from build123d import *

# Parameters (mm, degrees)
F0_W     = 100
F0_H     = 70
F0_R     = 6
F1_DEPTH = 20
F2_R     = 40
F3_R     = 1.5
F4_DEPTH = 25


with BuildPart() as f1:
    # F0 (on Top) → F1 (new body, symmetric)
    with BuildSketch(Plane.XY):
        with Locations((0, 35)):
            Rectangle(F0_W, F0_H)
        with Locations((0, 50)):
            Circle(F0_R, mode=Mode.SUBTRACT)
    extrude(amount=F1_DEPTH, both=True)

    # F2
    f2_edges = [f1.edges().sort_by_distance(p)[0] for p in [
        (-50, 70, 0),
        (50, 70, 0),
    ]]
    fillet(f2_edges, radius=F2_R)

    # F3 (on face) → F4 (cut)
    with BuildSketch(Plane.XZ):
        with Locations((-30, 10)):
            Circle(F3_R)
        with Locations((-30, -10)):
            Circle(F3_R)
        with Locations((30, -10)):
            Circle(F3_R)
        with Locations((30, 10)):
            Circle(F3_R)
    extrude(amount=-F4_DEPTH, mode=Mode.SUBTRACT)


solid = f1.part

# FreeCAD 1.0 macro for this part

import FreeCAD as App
import Part
import Sketcher
from FreeCAD import Vector
Q = App.Units.Quantity


def edges_at(feature, points):
    """Names of the edges that pass closest to the given points."""
    edges = feature.Shape.Edges
    near = lambda p: min(range(len(edges)), key=lambda i: edges[i].distToShape(Part.Vertex(*p))[0])
    return sorted({f"Edge{near(p) + 1}" for p in points})

doc = App.newDocument("Part")
params = doc.addObject("Spreadsheet::Sheet", "Params")
for row, (alias, value) in enumerate([
    ("sketch1_diameter", "12 mm"),
    ("sketch1_width", "100 mm"),
    ("sketch1_height", "70 mm"),
    ("pad1_length", "40 mm"),
    ("fillet_radius", "40 mm"),
    ("sketch2_diameter", "3 mm"),
    ("pocket1_length", "25 mm"),
], start=1):
    params.set(f"A{row}", alias)
    params.set(f"B{row}", "=" + value)
    params.setAlias(f"B{row}", alias)

body = doc.addObject("PartDesign::Body", "Body")

# Sketch on XY plane
sketch1 = body.newObject("Sketcher::SketchObject", "Sketch")
sketch1.AttachmentSupport = (doc.getObject("XY_Plane"), [""])
sketch1.MapMode = "FlatFace"
sketch1.addGeometry(Part.LineSegment(Vector(-50, 70, 0), Vector(-50, 0, 0)), False)
sketch1.addGeometry(Part.LineSegment(Vector(-50, 0, 0), Vector(50, 0, 0)), False)
sketch1.addGeometry(Part.LineSegment(Vector(50, 0, 0), Vector(50, 70, 0)), False)
sketch1.addGeometry(Part.LineSegment(Vector(50, 70, 0), Vector(-50, 70, 0)), False)
sketch1.addGeometry(Part.Circle(Vector(0, 50, 0), Vector(0, 0, 1), 6), False)
sketch1.addConstraint(Sketcher.Constraint("Coincident", 0, 2, 1, 1))
sketch1.addConstraint(Sketcher.Constraint("Coincident", 1, 2, 2, 1))
sketch1.addConstraint(Sketcher.Constraint("Coincident", 2, 2, 3, 1))
sketch1.addConstraint(Sketcher.Constraint("Coincident", 3, 2, 0, 1))
sketch1.addConstraint(Sketcher.Constraint("Vertical", 0))
sketch1.addConstraint(Sketcher.Constraint("Horizontal", 1))
sketch1.addConstraint(Sketcher.Constraint("Vertical", 2))
sketch1.addConstraint(Sketcher.Constraint("Horizontal", 3))
sketch1.addConstraint(Sketcher.Constraint("Symmetric", 0, 2, 1, 2, -1, 1))
sketch1.addConstraint(Sketcher.Constraint("PointOnObject", 4, 3, -2))
sketch1.addConstraint(Sketcher.Constraint("Diameter", 4, Q("12 mm")))
sketch1.addConstraint(Sketcher.Constraint("DistanceX", 1, 1, 1, 2, Q("100 mm")))
sketch1.addConstraint(Sketcher.Constraint("DistanceY", 0, 2, 0, 1, Q("70 mm")))
sketch1.addConstraint(Sketcher.Constraint("DistanceY", -1, 1, 4, 3, Q("50 mm")))
sketch1.setExpression("Constraints[10]", "Params.sketch1_diameter")
sketch1.setExpression("Constraints[11]", "Params.sketch1_width")
sketch1.setExpression("Constraints[12]", "Params.sketch1_height")
pad1 = body.newObject("PartDesign::Pad", "Pad")
pad1.Profile = sketch1
pad1.setExpression("Length", "Params.pad1_length")
pad1.Midplane = True
doc.recompute()

fillet = body.newObject("PartDesign::Fillet", "Fillet")
fillet.Base = (pad1, edges_at(pad1, [(-50, 70, 0), (50, 70, 0)]))
fillet.setExpression("Radius", "Params.fillet_radius")

# Sketch on XZ plane
sketch2 = body.newObject("Sketcher::SketchObject", "Sketch001")
sketch2.AttachmentSupport = (doc.getObject("XZ_Plane"), [""])
sketch2.MapMode = "FlatFace"
sketch2.addGeometry(Part.Circle(Vector(-30, 10, 0), Vector(0, 0, 1), 1.5), False)
sketch2.addGeometry(Part.Circle(Vector(-30, -10, 0), Vector(0, 0, 1), 1.5), False)
sketch2.addGeometry(Part.Circle(Vector(30, -10, 0), Vector(0, 0, 1), 1.5), False)
sketch2.addGeometry(Part.Circle(Vector(30, 10, 0), Vector(0, 0, 1), 1.5), False)
sketch2.addConstraint(Sketcher.Constraint("Equal", 0, 1))
sketch2.addConstraint(Sketcher.Constraint("Equal", 1, 2))
sketch2.addConstraint(Sketcher.Constraint("Equal", 2, 3))
sketch2.addConstraint(Sketcher.Constraint("Symmetric", 0, 3, 2, 3, -1, 1))
sketch2.addConstraint(Sketcher.Constraint("Symmetric", 1, 3, 3, 3, -1, 1))
sketch2.addConstraint(Sketcher.Constraint("Symmetric", 1, 3, 2, 3, -2))
sketch2.addConstraint(Sketcher.Constraint("Diameter", 0, Q("3 mm")))
sketch2.addConstraint(Sketcher.Constraint("DistanceX", 0, 3, -1, 1, Q("30 mm")))
sketch2.addConstraint(Sketcher.Constraint("DistanceY", -1, 1, 0, 3, Q("10 mm")))
sketch2.setExpression("Constraints[6]", "Params.sketch2_diameter")
pocket1 = body.newObject("PartDesign::Pocket", "Pocket")
pocket1.Profile = sketch2
pocket1.setExpression("Length", "Params.pocket1_length")

doc.recompute()
